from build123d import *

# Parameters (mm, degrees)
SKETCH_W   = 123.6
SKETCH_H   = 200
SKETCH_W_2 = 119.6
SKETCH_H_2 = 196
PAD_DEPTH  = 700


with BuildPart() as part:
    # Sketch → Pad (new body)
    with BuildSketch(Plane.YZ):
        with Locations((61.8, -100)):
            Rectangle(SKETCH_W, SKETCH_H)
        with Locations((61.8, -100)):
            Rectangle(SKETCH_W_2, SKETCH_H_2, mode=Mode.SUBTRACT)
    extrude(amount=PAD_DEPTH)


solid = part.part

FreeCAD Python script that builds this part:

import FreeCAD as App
import Part
import Sketcher
from FreeCAD import Vector


def add_polygon(sketch, points):
    """Adds a closed chain of lines whose ends are joined by coincident constraints."""
    first, n = sketch.GeometryCount, len(points)
    for a, b in zip(points, points[1:] + points[:1]):
        sketch.addGeometry(Part.LineSegment(App.Vector(*a, 0), App.Vector(*b, 0)), False)
    for i in range(n):
        sketch.addConstraint(Sketcher.Constraint("Coincident", first + i, 2, first + (i + 1) % n, 1))

doc = App.newDocument("Part")
body = doc.addObject("PartDesign::Body", "Body")

sketch1 = body.newObject("Sketcher::SketchObject", "Sketch")
sketch1.AttachmentSupport = (doc.getObject("YZ_Plane"), [""])
sketch1.MapMode = "FlatFace"
add_polygon(sketch1, [(0, 0), (0, -200), (124, -200), (124, 0)])
add_polygon(sketch1, [(122, -198), (2, -198), (2, -2), (122, -2)])
sketch1.addConstraint([
    Sketcher.Constraint("Vertical", 0),
    Sketcher.Constraint("Horizontal", 1),
    Sketcher.Constraint("Vertical", 2),
    Sketcher.Constraint("Horizontal", 3),
    Sketcher.Constraint("Horizontal", 4),
    Sketcher.Constraint("Vertical", 5),
    Sketcher.Constraint("Horizontal", 6),
    Sketcher.Constraint("Vertical", 7),
    Sketcher.Constraint("Coincident", 3, 2, -1, 1),
    Sketcher.Constraint("DistanceY", 0, 2, 0, 1, 200.0),
    Sketcher.Constraint("DistanceY", 5, 1, 5, 2, 196.0),
    Sketcher.Constraint("DistanceX", 1, 1, 1, 2, 123.6),
    Sketcher.Constraint("DistanceX", 4, 2, 4, 1, 119.6),
    Sketcher.Constraint("DistanceX", -1, 1, 4, 2, 2.0),
    Sketcher.Constraint("DistanceY", 4, 2, -1, 1, 198.0),
])
pad1 = body.newObject("PartDesign::Pad", "Pad")
pad1.Profile = sketch1
pad1.Length = 700

doc.recompute()
